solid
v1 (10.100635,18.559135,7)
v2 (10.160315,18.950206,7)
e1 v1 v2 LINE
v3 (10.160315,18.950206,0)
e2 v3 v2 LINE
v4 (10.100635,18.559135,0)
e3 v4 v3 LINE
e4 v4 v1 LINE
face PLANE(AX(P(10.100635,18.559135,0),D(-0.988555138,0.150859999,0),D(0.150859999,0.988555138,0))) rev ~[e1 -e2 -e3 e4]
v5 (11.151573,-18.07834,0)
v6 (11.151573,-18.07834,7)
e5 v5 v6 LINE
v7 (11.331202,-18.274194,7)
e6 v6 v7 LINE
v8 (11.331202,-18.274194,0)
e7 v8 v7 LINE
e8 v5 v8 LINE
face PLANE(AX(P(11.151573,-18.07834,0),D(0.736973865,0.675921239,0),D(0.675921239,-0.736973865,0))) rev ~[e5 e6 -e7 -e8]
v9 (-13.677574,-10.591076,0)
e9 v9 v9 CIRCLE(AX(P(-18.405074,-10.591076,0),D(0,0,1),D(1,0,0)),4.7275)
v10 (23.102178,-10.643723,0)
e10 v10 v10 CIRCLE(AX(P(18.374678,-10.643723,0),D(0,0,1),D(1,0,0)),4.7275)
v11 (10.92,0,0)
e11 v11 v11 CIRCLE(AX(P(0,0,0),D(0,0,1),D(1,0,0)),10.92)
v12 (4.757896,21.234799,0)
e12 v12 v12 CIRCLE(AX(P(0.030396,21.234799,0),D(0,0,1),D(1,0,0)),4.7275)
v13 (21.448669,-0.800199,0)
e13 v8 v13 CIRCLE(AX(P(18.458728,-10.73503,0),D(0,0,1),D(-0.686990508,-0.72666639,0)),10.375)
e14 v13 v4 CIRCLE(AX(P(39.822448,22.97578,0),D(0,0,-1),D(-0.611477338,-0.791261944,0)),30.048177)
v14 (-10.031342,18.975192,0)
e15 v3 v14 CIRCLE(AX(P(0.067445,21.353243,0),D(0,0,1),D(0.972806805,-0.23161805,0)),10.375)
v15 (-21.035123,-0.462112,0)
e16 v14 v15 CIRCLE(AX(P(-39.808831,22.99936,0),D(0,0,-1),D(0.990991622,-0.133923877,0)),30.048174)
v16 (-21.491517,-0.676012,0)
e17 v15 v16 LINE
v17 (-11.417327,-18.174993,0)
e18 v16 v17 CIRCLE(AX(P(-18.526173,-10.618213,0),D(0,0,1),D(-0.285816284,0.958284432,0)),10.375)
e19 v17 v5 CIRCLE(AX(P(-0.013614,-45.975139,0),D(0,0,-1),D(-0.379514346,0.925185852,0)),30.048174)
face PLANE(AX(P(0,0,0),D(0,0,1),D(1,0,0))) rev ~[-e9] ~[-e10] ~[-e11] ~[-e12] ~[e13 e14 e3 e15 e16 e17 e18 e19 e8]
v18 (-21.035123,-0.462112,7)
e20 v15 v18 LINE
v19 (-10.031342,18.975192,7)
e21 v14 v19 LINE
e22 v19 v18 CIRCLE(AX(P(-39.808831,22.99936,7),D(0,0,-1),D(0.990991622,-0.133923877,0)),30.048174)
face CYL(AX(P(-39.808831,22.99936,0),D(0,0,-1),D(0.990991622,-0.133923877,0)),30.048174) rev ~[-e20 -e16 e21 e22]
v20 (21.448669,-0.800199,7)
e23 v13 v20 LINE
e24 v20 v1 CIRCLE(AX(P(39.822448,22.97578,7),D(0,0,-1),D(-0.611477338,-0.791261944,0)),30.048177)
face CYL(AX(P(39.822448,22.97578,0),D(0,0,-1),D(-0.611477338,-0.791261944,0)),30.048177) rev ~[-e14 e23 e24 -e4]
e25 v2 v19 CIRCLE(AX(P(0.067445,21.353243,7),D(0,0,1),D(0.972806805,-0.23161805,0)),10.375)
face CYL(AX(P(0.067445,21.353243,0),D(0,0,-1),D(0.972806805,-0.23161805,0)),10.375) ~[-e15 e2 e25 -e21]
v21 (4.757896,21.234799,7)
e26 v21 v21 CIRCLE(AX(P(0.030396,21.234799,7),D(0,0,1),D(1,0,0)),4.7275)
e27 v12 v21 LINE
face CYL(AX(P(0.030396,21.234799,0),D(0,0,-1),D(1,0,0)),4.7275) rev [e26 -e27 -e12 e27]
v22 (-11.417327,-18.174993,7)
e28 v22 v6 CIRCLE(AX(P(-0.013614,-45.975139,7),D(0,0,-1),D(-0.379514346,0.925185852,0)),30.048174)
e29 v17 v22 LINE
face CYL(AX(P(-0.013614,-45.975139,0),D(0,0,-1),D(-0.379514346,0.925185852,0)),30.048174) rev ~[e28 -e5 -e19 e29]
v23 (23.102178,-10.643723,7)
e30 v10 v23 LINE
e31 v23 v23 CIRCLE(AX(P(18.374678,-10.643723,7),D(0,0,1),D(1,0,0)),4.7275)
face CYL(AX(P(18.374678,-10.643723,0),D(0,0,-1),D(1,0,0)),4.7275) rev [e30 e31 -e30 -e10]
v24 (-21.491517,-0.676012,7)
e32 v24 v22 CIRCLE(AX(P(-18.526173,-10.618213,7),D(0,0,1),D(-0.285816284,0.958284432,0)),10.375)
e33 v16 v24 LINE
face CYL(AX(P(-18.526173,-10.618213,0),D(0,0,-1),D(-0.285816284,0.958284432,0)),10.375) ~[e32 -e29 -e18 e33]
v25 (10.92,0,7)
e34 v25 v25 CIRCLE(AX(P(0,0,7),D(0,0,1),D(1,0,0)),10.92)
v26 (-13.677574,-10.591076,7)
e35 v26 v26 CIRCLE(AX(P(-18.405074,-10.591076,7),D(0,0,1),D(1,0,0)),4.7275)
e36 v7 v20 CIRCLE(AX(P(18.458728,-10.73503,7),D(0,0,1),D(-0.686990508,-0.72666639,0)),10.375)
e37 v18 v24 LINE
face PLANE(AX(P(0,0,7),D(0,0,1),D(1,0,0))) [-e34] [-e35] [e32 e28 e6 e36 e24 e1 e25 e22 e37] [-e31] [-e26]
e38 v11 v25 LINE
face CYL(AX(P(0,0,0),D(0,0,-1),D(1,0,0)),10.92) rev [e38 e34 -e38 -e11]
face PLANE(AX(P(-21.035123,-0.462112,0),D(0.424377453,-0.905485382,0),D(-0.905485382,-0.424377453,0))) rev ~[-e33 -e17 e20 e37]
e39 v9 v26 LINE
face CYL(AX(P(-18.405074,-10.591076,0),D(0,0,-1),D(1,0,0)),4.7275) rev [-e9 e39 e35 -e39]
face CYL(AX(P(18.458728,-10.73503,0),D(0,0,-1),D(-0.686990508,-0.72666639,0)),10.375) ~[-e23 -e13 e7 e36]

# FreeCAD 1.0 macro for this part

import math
import FreeCAD as App
import Part
import Sketcher

V = App.Vector
Q = App.Units.Quantity

doc = App.newDocument("Part")
body = doc.addObject("PartDesign::Body", "Body")

sketch1 = body.newObject("Sketcher::SketchObject", "Sketch")
sketch1.AttachmentSupport = (doc.getObject("XY_Plane"), [""])
sketch1.MapMode = "FlatFace"
sketch1.addGeometry([
    Part.LineSegment(V(11.151573, -18.07834, 0), V(11.331202, -18.274194, 0)),
    Part.ArcOfCircle(Part.Circle(V(18.458728, -10.73503, 0), V(0, 0, 1), 10.375), math.radians(-133.392351), math.radians(73.250551)),
    Part.ArcOfCircle(Part.Circle(V(39.822448, 22.97578, 0), V(0, 0, 1), 30.048177), math.radians(-171.547731), math.radians(-127.696401)),
    Part.LineSegment(V(10.100635, 18.559135, 0), V(10.160315, 18.950206, 0)),
    Part.ArcOfCircle(Part.Circle(V(0.067445, 21.353243, 0), V(0, 0, 1), 10.375), math.radians(-13.392352), math.radians(193.250552)),
    Part.ArcOfCircle(Part.Circle(V(-39.808831, 22.99936, 0), V(0, 0, 1), 30.048174), math.radians(-51.333446), math.radians(-7.696398)),
    Part.LineSegment(V(-21.035123, -0.462112, 0), V(-21.491517, -0.676012, 0)),
    Part.ArcOfCircle(Part.Circle(V(-18.526173, -10.618213, 0), V(0, 0, 1), 10.375), math.radians(106.607648), math.radians(313.250552)),
    Part.ArcOfCircle(Part.Circle(V(-0.013614, -45.975139, 0), V(0, 0, 1), 30.048174), math.radians(68.187141), math.radians(112.303603)),
    Part.Circle(V(-18.405074, -10.591076, 0), V(0, 0, 1), 4.7275),
    Part.Circle(V(18.374678, -10.643723, 0), V(0, 0, 1), 4.7275),
    Part.Circle(V(0, 0, 0), V(0, 0, 1), 10.92),
    Part.Circle(V(0.030396, 21.234799, 0), V(0, 0, 1), 4.7275),
], False)
sketch1.addConstraint([
    Sketcher.Constraint("Coincident", 0, 2, 1, 1),
    Sketcher.Constraint("Coincident", 1, 2, 2, 2),
    Sketcher.Constraint("Coincident", 2, 1, 3, 1),
    Sketcher.Constraint("Coincident", 3, 2, 4, 1),
    Sketcher.Constraint("Coincident", 4, 2, 5, 2),
    Sketcher.Constraint("Coincident", 5, 1, 6, 1),
    Sketcher.Constraint("Coincident", 6, 2, 7, 1),
    Sketcher.Constraint("Coincident", 7, 2, 8, 2),
    Sketcher.Constraint("Coincident", 8, 1, 0, 1),
    Sketcher.Constraint("Coincident", 11, 3, -1, 1),
    Sketcher.Constraint("Equal", 1, 4),
    Sketcher.Constraint("Equal", 4, 7),
    Sketcher.Constraint("Equal", 5, 8),
    Sketcher.Constraint("Equal", 9, 10),
    Sketcher.Constraint("Equal", 10, 12),
    Sketcher.Constraint("Diameter", 11, Q("21.84 mm")),
    Sketcher.Constraint("Diameter", 9, Q("9.455 mm")),
    Sketcher.Constraint("Radius", 1, Q("10.375 mm")),
    Sketcher.Constraint("Radius", 2, Q("30.048177 mm")),
    Sketcher.Constraint("Radius", 5, Q("30.048174 mm")),
    Sketcher.Constraint("Distance", 3, Q("0.395599 mm")),
    Sketcher.Constraint("DistanceY", -1, 1, 12, 3, Q("21.234799 mm")),
    Sketcher.Constraint("DistanceX", -1, 1, 0, 2, Q("11.331202 mm")),
    Sketcher.Constraint("DistanceY", 1, 2, -1, 1, Q("0.800199 mm")),
    Sketcher.Constraint("DistanceX", 7, 3, 1, 3, Q("36.984901 mm")),
    Sketcher.Constraint("DistanceY", 8, 3, 5, 3, Q("68.974499 mm")),
    Sketcher.Constraint("DistanceX", 7, 3, 9, 3, Q("0.121099 mm")),
    Sketcher.Constraint("DistanceY", 7, 3, 5, 1, Q("10.156101 mm")),
    Sketcher.Constraint("DistanceY", 6, 2, 5, 1, Q("0.2139 mm")),
    Sketcher.Constraint("DistanceX", -1, 1, 1, 3, Q("18.458728 mm")),
    Sketcher.Constraint("DistanceY", 1, 3, -1, 1, Q("10.73503 mm")),
    Sketcher.Constraint("DistanceX", -1, 1, 2, 3, Q("39.822448 mm")),
    Sketcher.Constraint("DistanceX", 5, 3, -1, 1, Q("39.808831 mm")),
    Sketcher.Constraint("DistanceY", -1, 1, 5, 3, Q("22.99936 mm")),
    Sketcher.Constraint("DistanceX", 4, 2, -1, 1, Q("10.031342 mm")),
    Sketcher.Constraint("DistanceY", 5, 1, -1, 1, Q("0.462112 mm")),
    Sketcher.Constraint("DistanceY", 8, 1, -1, 1, Q("18.07834 mm")),
    Sketcher.Constraint("DistanceX", 7, 3, 8, 3, Q("18.512559 mm")),
    Sketcher.Constraint("DistanceX", 8, 3, 4, 3, Q("0.081058 mm")),
    Sketcher.Constraint("DistanceY", 9, 3, 4, 3, Q("31.944319 mm")),
    Sketcher.Constraint("DistanceX", 10, 3, 1, 3, Q("0.08405 mm")),
    Sketcher.Constraint("DistanceY", 10, 3, 7, 3, Q("0.02551 mm")),
    Sketcher.Constraint("DistanceX", 12, 3, 4, 3, Q("0.037049 mm")),
    Sketcher.Constraint("DistanceX", 4, 3, 2, 1, Q("10.03319 mm")),
])
pad1 = body.newObject("PartDesign::Pad", "Pad")
pad1.Profile = sketch1
pad1.Length = 7

doc.recompute()
